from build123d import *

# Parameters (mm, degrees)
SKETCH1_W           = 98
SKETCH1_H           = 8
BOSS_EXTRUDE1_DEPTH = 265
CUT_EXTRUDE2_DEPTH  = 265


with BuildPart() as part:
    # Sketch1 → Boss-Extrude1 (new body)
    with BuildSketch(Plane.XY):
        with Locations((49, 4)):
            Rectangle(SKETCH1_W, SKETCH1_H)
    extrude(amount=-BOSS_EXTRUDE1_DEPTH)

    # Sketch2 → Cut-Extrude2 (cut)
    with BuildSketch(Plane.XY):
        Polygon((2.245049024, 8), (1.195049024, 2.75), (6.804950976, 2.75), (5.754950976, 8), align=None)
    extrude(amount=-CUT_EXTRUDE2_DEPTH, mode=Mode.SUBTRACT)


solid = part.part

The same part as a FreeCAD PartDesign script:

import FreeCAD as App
import Part
import Sketcher
Q = App.Units.Quantity

doc = App.newDocument("Part")
params = doc.addObject("Spreadsheet::Sheet", "Params")
for row, (alias, value) in enumerate([
    ("sketch1_width", "98 mm"),
    ("sketch1_height", "8 mm"),
    ("pad1_length", "265 mm"),
    ("pocket1_length", "265 mm"),
], start=1):
    params.set(f"A{row}", alias)
    params.set(f"B{row}", "=" + value)
    params.setAlias(f"B{row}", alias)

body = doc.addObject("PartDesign::Body", "Body")

sketch1 = doc.addObject("Sketcher::SketchObject", "Sketch")
body.addObject(sketch1)
sketch1.AttachmentSupport = (doc.XY_Plane, [""])
sketch1.MapMode = "FlatFace"
sketch1.addGeometry(Part.LineSegment(App.Vector(0, 8, 0), App.Vector(0, 0, 0)), False)
sketch1.addGeometry(Part.LineSegment(App.Vector(0, 0, 0), App.Vector(98, 0, 0)), False)
sketch1.addGeometry(Part.LineSegment(App.Vector(98, 0, 0), App.Vector(98, 8, 0)), False)
sketch1.addGeometry(Part.LineSegment(App.Vector(98, 8, 0), App.Vector(0, 8, 0)), False)
sketch1.addConstraint(Sketcher.Constraint("Coincident", 0, 2, 1, 1))
sketch1.addConstraint(Sketcher.Constraint("Coincident", 1, 2, 2, 1))
sketch1.addConstraint(Sketcher.Constraint("Coincident", 2, 2, 3, 1))
sketch1.addConstraint(Sketcher.Constraint("Coincident", 3, 2, 0, 1))
sketch1.addConstraint(Sketcher.Constraint("Vertical", 0))
sketch1.addConstraint(Sketcher.Constraint("Horizontal", 1))
sketch1.addConstraint(Sketcher.Constraint("Vertical", 2))
sketch1.addConstraint(Sketcher.Constraint("Horizontal", 3))
sketch1.addConstraint(Sketcher.Constraint("Coincident", 0, 2, -1, 1))
sketch1.addConstraint(Sketcher.Constraint("DistanceX", 1, 1, 1, 2, Q("98 mm")))
sketch1.addConstraint(Sketcher.Constraint("DistanceY", 0, 2, 0, 1, Q("8 mm")))
sketch1.setExpression("Constraints[9]", "Params.sketch1_width")
sketch1.setExpression("Constraints[10]", "Params.sketch1_height")
pad1 = doc.addObject("PartDesign::Pad", "Pad")
body.addObject(pad1)
pad1.Profile = sketch1
pad1.setExpression("Length", "Params.pad1_length")
pad1.Reversed = True

sketch2 = doc.addObject("Sketcher::SketchObject", "Sketch001")
body.addObject(sketch2)
sketch2.AttachmentSupport = (doc.XY_Plane, [""])
sketch2.MapMode = "FlatFace"
sketch2.addGeometry(Part.LineSegment(App.Vector(2.2, 8, 0), App.Vector(1.2, 2.8, 0)), False)
sketch2.addGeometry(Part.LineSegment(App.Vector(1.2, 2.8, 0), App.Vector(6.8, 2.8, 0)), False)
sketch2.addGeometry(Part.LineSegment(App.Vector(6.8, 2.8, 0), App.Vector(5.8, 8, 0)), False)
sketch2.addGeometry(Part.LineSegment(App.Vector(5.8, 8, 0), App.Vector(2.2, 8, 0)), False)
sketch2.addConstraint(Sketcher.Constraint("Coincident", 0, 2, 1, 1))
sketch2.addConstraint(Sketcher.Constraint("Coincident", 1, 2, 2, 1))
sketch2.addConstraint(Sketcher.Constraint("Coincident", 2, 2, 3, 1))
sketch2.addConstraint(Sketcher.Constraint("Coincident", 3, 2, 0, 1))
sketch2.addConstraint(Sketcher.Constraint("Horizontal", 1))
sketch2.addConstraint(Sketcher.Constraint("Horizontal", 3))
sketch2.addConstraint(Sketcher.Constraint("Equal", 0, 2))
sketch2.addConstraint(Sketcher.Constraint("DistanceY", -1, 1, 2, 2, Q("8 mm")))
sketch2.addConstraint(Sketcher.Constraint("DistanceY", -1, 1, 0, 2, Q("2.75 mm")))
sketch2.addConstraint(Sketcher.Constraint("DistanceX", 2, 2, 1, 2, Q("1.05 mm")))
sketch2.addConstraint(Sketcher.Constraint("DistanceX", 1, 1, 1, 2, Q("5.609902 mm")))
sketch2.addConstraint(Sketcher.Constraint("DistanceX", -1, 1, 0, 2, Q("1.195049 mm")))
pocket1 = doc.addObject("PartDesign::Pocket", "Pocket")
body.addObject(pocket1)
pocket1.Profile = sketch2
pocket1.setExpression("Length", "Params.pocket1_length")

doc.recompute()
